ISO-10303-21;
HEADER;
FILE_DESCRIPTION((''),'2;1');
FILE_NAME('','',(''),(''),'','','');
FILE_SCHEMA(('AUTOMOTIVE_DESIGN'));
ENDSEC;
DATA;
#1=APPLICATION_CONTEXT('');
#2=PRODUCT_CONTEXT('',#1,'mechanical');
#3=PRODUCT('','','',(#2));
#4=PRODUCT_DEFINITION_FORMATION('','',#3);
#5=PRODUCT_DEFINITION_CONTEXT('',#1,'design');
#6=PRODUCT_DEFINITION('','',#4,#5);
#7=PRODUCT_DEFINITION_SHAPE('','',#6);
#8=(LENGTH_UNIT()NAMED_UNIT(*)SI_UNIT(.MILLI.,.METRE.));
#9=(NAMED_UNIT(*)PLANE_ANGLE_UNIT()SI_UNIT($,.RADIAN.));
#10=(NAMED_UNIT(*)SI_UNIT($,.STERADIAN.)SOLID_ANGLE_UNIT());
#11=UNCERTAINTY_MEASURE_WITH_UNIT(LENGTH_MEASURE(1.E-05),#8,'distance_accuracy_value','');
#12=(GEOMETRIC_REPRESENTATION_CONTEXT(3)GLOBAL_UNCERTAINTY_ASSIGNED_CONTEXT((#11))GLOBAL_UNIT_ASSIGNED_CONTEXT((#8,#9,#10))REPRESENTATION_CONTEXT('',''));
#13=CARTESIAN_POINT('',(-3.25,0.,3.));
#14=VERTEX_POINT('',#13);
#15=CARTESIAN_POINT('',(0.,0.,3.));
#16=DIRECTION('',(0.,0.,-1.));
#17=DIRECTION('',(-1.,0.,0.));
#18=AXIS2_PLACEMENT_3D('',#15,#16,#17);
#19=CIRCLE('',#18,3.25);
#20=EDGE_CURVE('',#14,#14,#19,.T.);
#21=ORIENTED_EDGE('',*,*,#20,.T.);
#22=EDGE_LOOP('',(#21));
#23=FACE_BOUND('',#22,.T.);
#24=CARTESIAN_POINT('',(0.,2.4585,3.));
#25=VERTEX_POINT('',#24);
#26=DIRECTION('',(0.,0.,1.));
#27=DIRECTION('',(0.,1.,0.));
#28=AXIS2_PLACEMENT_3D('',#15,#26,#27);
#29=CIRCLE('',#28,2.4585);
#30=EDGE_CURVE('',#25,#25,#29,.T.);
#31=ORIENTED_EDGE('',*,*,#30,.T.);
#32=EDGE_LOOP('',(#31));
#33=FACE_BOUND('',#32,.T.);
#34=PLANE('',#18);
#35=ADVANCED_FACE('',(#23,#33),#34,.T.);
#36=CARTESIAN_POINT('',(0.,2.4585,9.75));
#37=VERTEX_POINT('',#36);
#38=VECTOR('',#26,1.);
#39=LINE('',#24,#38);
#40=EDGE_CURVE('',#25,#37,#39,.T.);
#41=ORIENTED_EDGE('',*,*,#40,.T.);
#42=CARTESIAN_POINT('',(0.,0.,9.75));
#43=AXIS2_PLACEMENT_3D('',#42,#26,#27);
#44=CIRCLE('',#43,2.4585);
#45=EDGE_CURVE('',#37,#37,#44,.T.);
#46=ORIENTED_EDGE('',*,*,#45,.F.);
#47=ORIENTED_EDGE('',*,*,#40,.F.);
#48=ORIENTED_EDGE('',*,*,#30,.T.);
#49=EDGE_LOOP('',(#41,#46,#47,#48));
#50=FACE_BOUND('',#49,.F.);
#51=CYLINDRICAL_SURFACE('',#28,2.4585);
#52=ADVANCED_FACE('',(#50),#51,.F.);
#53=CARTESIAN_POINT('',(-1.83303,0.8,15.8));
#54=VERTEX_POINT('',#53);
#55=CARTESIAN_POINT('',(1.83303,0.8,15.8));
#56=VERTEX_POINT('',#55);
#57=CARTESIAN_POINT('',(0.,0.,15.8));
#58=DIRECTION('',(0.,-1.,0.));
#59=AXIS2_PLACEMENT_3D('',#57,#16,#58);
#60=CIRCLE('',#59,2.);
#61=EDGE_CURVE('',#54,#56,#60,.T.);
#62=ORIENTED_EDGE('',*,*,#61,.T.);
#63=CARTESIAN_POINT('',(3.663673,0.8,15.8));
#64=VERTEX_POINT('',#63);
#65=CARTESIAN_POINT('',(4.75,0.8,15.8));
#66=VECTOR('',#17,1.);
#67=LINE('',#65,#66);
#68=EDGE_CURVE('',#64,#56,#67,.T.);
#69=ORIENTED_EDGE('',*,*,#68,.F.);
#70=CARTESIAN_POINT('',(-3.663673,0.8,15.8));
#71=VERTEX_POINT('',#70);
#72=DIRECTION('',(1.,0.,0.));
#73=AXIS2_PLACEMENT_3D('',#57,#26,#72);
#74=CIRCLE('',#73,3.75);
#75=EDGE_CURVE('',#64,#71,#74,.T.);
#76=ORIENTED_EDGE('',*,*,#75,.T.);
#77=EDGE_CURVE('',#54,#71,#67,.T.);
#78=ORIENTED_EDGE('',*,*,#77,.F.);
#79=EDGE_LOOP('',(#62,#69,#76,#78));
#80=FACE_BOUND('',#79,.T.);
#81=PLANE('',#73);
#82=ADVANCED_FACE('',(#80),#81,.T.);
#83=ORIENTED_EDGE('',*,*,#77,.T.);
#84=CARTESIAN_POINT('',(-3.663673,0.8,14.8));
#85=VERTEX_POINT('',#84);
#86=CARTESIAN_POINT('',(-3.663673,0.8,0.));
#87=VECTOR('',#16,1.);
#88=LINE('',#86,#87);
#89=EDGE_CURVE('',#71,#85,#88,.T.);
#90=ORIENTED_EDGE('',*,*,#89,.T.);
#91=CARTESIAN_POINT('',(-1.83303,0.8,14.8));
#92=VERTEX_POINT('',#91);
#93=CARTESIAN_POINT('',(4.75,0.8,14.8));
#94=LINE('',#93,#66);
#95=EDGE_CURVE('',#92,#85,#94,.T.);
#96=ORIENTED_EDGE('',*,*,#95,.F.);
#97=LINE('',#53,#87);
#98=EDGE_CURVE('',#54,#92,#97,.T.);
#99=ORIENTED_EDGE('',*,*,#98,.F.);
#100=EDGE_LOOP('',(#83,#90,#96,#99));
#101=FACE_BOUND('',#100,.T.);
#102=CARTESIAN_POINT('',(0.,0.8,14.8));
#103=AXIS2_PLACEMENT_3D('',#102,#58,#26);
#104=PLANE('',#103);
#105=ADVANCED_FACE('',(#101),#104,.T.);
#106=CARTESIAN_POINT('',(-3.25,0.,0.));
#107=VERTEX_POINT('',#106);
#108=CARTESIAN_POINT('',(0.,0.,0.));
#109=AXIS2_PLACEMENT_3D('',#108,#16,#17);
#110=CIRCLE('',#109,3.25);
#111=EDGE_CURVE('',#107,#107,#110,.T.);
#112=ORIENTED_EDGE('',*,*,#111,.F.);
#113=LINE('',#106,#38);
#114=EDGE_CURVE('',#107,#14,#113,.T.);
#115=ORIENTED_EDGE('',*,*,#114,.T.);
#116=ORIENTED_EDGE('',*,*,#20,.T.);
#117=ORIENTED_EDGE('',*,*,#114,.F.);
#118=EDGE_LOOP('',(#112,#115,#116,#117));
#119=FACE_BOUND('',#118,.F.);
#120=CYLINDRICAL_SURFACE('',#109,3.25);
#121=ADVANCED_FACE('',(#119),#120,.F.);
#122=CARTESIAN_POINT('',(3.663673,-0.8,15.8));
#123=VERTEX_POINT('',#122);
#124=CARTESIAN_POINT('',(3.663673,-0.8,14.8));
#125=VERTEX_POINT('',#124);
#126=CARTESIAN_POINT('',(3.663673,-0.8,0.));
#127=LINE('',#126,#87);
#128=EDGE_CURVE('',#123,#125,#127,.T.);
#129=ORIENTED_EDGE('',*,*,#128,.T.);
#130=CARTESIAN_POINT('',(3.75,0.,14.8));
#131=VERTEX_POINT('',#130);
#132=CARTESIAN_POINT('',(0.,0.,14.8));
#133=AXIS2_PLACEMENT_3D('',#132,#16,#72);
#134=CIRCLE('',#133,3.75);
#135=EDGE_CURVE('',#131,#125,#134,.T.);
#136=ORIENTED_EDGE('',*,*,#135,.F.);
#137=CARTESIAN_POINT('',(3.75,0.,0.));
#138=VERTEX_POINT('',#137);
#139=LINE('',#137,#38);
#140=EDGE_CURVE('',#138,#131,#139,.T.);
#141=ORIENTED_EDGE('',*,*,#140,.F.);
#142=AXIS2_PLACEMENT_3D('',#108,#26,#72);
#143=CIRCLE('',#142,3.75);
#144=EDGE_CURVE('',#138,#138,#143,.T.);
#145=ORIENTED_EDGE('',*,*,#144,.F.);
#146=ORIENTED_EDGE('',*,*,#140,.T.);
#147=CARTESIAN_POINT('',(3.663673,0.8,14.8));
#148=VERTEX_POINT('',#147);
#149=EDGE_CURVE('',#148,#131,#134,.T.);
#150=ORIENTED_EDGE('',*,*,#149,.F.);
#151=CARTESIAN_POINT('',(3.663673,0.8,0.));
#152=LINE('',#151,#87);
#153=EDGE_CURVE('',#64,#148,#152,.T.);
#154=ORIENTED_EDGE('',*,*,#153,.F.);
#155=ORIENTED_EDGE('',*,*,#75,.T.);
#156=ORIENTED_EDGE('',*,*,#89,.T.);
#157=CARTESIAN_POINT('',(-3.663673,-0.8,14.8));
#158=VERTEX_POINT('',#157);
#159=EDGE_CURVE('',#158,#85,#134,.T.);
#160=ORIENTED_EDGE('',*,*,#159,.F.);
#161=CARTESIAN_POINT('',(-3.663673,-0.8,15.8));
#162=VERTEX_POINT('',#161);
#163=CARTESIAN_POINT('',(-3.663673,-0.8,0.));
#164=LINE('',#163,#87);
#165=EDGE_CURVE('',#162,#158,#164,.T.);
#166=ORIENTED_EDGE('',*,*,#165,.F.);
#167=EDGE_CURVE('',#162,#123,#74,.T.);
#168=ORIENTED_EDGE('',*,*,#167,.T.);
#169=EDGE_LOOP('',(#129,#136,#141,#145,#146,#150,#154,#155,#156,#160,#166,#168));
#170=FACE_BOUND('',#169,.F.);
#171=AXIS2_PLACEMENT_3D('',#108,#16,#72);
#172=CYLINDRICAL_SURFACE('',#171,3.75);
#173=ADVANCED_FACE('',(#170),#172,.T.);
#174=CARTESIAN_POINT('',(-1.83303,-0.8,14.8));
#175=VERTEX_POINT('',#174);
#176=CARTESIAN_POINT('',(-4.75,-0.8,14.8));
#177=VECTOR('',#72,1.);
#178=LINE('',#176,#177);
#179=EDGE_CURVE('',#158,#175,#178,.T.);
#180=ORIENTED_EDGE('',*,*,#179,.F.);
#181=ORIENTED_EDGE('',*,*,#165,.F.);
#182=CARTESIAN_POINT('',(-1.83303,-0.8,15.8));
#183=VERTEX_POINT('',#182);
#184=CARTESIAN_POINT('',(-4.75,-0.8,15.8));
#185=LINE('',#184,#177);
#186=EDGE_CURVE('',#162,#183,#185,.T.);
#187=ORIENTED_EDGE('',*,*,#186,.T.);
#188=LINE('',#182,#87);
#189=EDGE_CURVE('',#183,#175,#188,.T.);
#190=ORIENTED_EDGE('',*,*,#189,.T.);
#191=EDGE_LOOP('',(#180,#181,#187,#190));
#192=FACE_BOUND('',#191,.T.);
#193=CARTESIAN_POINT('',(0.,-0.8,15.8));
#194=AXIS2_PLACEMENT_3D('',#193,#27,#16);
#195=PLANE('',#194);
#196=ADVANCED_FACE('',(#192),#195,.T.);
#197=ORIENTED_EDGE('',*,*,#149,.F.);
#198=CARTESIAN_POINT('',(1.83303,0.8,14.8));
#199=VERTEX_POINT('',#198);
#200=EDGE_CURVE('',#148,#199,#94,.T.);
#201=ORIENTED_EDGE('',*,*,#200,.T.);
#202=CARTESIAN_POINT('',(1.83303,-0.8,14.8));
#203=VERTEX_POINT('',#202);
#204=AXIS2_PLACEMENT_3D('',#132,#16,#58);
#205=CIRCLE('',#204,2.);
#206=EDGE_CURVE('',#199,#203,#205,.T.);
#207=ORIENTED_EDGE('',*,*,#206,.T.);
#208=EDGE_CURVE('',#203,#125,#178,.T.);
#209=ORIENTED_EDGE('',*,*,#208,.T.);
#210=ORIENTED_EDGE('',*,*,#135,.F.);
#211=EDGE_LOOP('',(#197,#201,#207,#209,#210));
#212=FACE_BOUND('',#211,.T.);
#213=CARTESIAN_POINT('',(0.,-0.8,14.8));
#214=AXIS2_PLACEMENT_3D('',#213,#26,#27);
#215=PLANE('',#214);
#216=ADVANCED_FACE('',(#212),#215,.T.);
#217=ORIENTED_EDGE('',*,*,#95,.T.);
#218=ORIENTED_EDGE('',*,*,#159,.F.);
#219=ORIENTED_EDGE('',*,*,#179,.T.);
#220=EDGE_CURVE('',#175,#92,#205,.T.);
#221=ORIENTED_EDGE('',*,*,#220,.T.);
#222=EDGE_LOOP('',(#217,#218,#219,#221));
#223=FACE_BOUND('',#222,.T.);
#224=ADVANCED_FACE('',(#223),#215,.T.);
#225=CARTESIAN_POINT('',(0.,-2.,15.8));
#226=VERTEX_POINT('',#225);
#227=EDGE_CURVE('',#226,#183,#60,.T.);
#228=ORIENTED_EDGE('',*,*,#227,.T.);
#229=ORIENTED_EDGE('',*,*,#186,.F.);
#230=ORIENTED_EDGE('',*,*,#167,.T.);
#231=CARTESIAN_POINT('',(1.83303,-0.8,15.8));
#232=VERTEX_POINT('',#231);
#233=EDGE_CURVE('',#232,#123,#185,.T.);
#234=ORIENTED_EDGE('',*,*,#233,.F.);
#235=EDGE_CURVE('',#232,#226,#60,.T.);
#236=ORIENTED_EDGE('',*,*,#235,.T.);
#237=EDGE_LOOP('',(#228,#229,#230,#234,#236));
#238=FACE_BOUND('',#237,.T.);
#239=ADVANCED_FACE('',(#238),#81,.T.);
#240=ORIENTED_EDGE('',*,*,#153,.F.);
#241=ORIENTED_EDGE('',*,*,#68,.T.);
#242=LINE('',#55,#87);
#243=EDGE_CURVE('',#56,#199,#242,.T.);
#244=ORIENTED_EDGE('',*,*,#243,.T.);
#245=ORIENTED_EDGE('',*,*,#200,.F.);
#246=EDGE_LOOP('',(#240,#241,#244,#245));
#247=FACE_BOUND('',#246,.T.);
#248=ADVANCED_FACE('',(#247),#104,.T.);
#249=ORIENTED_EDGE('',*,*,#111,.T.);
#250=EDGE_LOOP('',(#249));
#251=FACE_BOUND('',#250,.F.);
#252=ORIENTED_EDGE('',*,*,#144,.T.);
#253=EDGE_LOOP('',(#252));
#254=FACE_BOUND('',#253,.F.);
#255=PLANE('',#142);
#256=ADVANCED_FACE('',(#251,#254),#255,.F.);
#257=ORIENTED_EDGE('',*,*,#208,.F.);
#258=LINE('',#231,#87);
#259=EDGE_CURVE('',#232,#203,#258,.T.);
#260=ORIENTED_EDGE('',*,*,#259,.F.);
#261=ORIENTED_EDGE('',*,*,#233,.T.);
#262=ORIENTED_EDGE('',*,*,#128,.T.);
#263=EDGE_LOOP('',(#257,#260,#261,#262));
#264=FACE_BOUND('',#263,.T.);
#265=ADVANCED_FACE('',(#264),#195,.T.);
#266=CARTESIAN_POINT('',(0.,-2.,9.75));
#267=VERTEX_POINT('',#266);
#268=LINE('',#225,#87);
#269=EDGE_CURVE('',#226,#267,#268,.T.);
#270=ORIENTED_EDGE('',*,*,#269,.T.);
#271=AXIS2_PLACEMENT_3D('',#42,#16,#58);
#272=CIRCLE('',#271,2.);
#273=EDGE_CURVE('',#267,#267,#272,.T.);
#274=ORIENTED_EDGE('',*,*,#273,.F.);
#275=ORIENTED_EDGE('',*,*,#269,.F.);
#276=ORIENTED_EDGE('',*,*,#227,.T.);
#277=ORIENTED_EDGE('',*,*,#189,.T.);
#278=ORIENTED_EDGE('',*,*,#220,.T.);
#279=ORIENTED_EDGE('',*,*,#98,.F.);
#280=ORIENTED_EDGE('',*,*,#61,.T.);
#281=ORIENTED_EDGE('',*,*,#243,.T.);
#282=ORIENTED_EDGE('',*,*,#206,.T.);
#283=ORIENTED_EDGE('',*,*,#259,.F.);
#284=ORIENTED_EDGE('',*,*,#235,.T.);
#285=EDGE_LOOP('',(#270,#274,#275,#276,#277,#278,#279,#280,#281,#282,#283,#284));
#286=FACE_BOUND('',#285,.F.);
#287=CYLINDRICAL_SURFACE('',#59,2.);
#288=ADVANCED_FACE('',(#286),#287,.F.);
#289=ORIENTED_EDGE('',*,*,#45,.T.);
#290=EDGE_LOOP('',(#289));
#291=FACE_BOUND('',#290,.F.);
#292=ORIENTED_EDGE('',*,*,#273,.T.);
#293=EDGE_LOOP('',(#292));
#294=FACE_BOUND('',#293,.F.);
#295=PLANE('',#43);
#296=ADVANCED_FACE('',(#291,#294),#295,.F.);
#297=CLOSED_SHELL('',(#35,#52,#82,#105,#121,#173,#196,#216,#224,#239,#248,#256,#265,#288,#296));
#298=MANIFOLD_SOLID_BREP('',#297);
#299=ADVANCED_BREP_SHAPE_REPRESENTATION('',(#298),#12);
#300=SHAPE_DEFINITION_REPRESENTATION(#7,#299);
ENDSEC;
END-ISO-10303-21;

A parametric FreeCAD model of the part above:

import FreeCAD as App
import Part
import Sketcher
from FreeCAD import Vector


def add_polygon(sketch, points):
    """Adds a closed chain of lines whose ends are joined by coincident constraints."""
    first, n = sketch.GeometryCount, len(points)
    for a, b in zip(points, points[1:] + points[:1]):
        sketch.addGeometry(Part.LineSegment(App.Vector(*a, 0), App.Vector(*b, 0)), False)
    for i in range(n):
        sketch.addConstraint(Sketcher.Constraint("Coincident", first + i, 2, first + (i + 1) % n, 1))

doc = App.newDocument("Part")
params = doc.addObject("Spreadsheet::Sheet", "Params")
for row, (alias, value) in enumerate([
    ("sketch1_diameter", "7.5 mm"),
    ("pad1_length", "15.8 mm"),
    ("sketch2_diameter", "6.5 mm"),
    ("pocket1_length", "3 mm"),
    ("hole_diameter", "4.917 mm"),
    ("hole_depth", "6.75 mm"),
    ("sketch4_diameter", "4 mm"),
    ("hole2_diameter", "4 mm"),
    ("sketch5_height", "1 mm"),
    ("sketch5_width", "1.6 mm"),
], start=1):
    params.set(f"A{row}", alias)
    params.set(f"B{row}", "=" + value)
    params.setAlias(f"B{row}", alias)

body = doc.addObject("PartDesign::Body", "Body")

# Sketch on XY plane
sketch1 = doc.addObject("Sketcher::SketchObject", "Sketch")
body.addObject(sketch1)
sketch1.AttachmentSupport = (doc.XY_Plane, [""])
sketch1.MapMode = "FlatFace"
sketch1.addGeometry(Part.Circle(Vector(0, 0, 0), Vector(0, 0, 1), 3.8), False)
sketch1.addConstraint([
    Sketcher.Constraint("Coincident", 0, 3, -1, 1),
    Sketcher.Constraint("Diameter", 0, 7.5),
])
sketch1.setExpression("Constraints[1]", "Params.sketch1_diameter")
pad1 = doc.addObject("PartDesign::Pad", "Pad")
body.addObject(pad1)
pad1.Profile = sketch1
pad1.setExpression("Length", "Params.pad1_length")

# Sketch on XY plane
sketch2 = doc.addObject("Sketcher::SketchObject", "Sketch001")
body.addObject(sketch2)
sketch2.AttachmentSupport = (doc.XY_Plane, [""])
sketch2.MapMode = "FlatFace"
sketch2.addGeometry(Part.Circle(Vector(0, 0, 0), Vector(0, 0, 1), 3.2), False)
sketch2.addConstraint([
    Sketcher.Constraint("Coincident", 0, 3, -1, 1),
    Sketcher.Constraint("Diameter", 0, 6.5),
])
sketch2.setExpression("Constraints[1]", "Params.sketch2_diameter")
pocket1 = doc.addObject("PartDesign::Pocket", "Pocket")
body.addObject(pocket1)
pocket1.Profile = sketch2
pocket1.setExpression("Length", "Params.pocket1_length")
pocket1.Reversed = True

# Sketch on XY plane
sketch3 = doc.addObject("Sketcher::SketchObject", "Sketch002")
body.addObject(sketch3)
sketch3.AttachmentSupport = (doc.XY_Plane, [""])
sketch3.MapMode = "FlatFace"
sketch3.AttachmentOffset = App.Placement(Vector(0, 0, 3), App.Rotation())
sketch3.addGeometry(Part.Circle(Vector(0, 0, 0), Vector(0, 0, 1), 2.5), False)
sketch3.addConstraint([
    Sketcher.Constraint("Coincident", 0, 3, -1, 1),
    Sketcher.Constraint("Diameter", 0, 4.917),
])
doc.recompute()
hole = doc.addObject("PartDesign::Hole", "Hole")
body.addObject(hole)
hole.Profile = sketch3
hole.ThreadType = "None"
hole.setExpression("Diameter", "Params.hole_diameter")
hole.DepthType = "Dimension"
hole.setExpression("Depth", "Params.hole_depth")
hole.DrillPoint = "Flat"
hole.Reversed = True

# Sketch on XY plane
sketch4 = doc.addObject("Sketcher::SketchObject", "Sketch003")
body.addObject(sketch4)
sketch4.AttachmentSupport = (doc.XY_Plane, [""])
sketch4.MapMode = "FlatFace"
sketch4.AttachmentOffset = App.Placement(Vector(0, 0, 15.8), App.Rotation())
sketch4.addGeometry(Part.Circle(Vector(0, 0, 0), Vector(0, 0, 1), 2), False)
sketch4.addConstraint([
    Sketcher.Constraint("Coincident", 0, 3, -1, 1),
    Sketcher.Constraint("Diameter", 0, 4.0),
])
sketch4.setExpression("Constraints[1]", "Params.sketch4_diameter")
doc.recompute()
hole2 = doc.addObject("PartDesign::Hole", "Hole001")
body.addObject(hole2)
hole2.Profile = sketch4
hole2.ThreadType = "None"
hole2.setExpression("Diameter", "Params.hole2_diameter")
hole2.DepthType = "ThroughAll"

# Sketch on YZ plane
sketch5 = doc.addObject("Sketcher::SketchObject", "Sketch004")
body.addObject(sketch5)
sketch5.AttachmentSupport = (doc.YZ_Plane, [""])
sketch5.MapMode = "FlatFace"
add_polygon(sketch5, [(0.8, 15.8), (-0.8, 15.8), (-0.8, 14.8), (0.8, 14.8)])  # lines 0-3
sketch5.addConstraint([
    Sketcher.Constraint("Horizontal", 0),
    Sketcher.Constraint("Vertical", 1),
    Sketcher.Constraint("Horizontal", 2),
    Sketcher.Constraint("Vertical", 3),
    Sketcher.Constraint("DistanceY", 1, 2, 1, 1, 1.0),
    Sketcher.Constraint("DistanceX", 0, 2, 0, 1, 1.6),
    Sketcher.Constraint("DistanceX", 0, 2, -1, 1, 0.8),
    Sketcher.Constraint("DistanceY", -1, 1, 0, 2, 15.8),
])
sketch5.setExpression("Constraints[8]", "Params.sketch5_height")
sketch5.setExpression("Constraints[9]", "Params.sketch5_width")
pocket2 = doc.addObject("PartDesign::Pocket", "Pocket001")
body.addObject(pocket2)
pocket2.Profile = sketch5
pocket2.Type = "ThroughAll"
pocket2.Midplane = True

doc.recompute()
